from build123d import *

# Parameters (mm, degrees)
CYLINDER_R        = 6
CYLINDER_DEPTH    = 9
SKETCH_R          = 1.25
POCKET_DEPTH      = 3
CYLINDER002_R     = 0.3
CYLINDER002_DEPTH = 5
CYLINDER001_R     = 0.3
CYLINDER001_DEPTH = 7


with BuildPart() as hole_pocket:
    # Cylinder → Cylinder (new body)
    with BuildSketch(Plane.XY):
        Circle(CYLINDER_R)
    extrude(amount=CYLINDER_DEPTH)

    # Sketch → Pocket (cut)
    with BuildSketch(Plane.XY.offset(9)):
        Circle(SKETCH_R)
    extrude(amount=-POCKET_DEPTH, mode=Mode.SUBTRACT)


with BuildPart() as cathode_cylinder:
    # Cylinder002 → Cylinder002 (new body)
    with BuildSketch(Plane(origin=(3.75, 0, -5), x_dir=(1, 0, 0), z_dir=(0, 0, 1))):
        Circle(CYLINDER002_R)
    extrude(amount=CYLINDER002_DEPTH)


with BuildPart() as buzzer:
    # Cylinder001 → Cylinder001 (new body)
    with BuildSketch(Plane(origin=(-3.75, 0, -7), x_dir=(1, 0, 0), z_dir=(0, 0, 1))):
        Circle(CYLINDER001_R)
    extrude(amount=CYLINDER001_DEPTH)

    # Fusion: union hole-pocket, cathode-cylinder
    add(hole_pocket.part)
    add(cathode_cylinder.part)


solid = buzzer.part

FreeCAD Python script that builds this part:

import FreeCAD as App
import Part
import Sketcher
Q = App.Units.Quantity

doc = App.newDocument("Part")
body = doc.addObject("PartDesign::Body", "Body")

# Sketch on XY plane
sketch1 = body.newObject("Sketcher::SketchObject", "Sketch")
sketch1.AttachmentSupport = (doc.getObject("XY_Plane"), [""])
sketch1.MapMode = "FlatFace"
sketch1.addGeometry(Part.Circle(App.Vector(0, 0, 0), App.Vector(0, 0, 1), 6), False)
sketch1.addConstraint(Sketcher.Constraint("Coincident", 0, 3, -1, 1))
sketch1.addConstraint(Sketcher.Constraint("Diameter", 0, Q("12 mm")))
pad1 = body.newObject("PartDesign::Pad", "Pad")
pad1.Profile = sketch1
pad1.Length = 9

# Sketch on XY plane
sketch2 = body.newObject("Sketcher::SketchObject", "Sketch001")
sketch2.AttachmentSupport = (doc.getObject("XY_Plane"), [""])
sketch2.MapMode = "FlatFace"
sketch2.AttachmentOffset = App.Placement(App.Vector(0, 0, 9), App.Rotation())
sketch2.addGeometry(Part.Circle(App.Vector(0, 0, 0), App.Vector(0, 0, 1), 1.2), False)
sketch2.addConstraint(Sketcher.Constraint("Coincident", 0, 3, -1, 1))
sketch2.addConstraint(Sketcher.Constraint("Diameter", 0, Q("2.5 mm")))
pocket1 = body.newObject("PartDesign::Pocket", "Pocket")
pocket1.Profile = sketch2
pocket1.Length = 3
body2 = doc.addObject("PartDesign::Body", "Body001")

# Sketch on XY plane
sketch3 = body2.newObject("Sketcher::SketchObject", "Sketch002")
sketch3.AttachmentSupport = (doc.getObject("XY_Plane001"), [""])
sketch3.MapMode = "FlatFace"
sketch3.AttachmentOffset = App.Placement(App.Vector(0, 0, -5), App.Rotation())
sketch3.addGeometry(Part.Circle(App.Vector(3.75, 0, 0), App.Vector(0, 0, 1), 0.3), False)
sketch3.addConstraint(Sketcher.Constraint("PointOnObject", 0, 3, -1))
sketch3.addConstraint(Sketcher.Constraint("Diameter", 0, Q("0.6 mm")))
sketch3.addConstraint(Sketcher.Constraint("DistanceX", -1, 1, 0, 3, Q("3.75 mm")))
pad2 = body2.newObject("PartDesign::Pad", "Pad001")
pad2.Profile = sketch3
pad2.Length = 5
body3 = doc.addObject("PartDesign::Body", "Body002")

# Sketch on XY plane
sketch4 = body3.newObject("Sketcher::SketchObject", "Sketch003")
sketch4.AttachmentSupport = (doc.getObject("XY_Plane002"), [""])
sketch4.MapMode = "FlatFace"
sketch4.AttachmentOffset = App.Placement(App.Vector(0, 0, -7), App.Rotation())
sketch4.addGeometry(Part.Circle(App.Vector(-3.75, 0, 0), App.Vector(0, 0, 1), 0.3), False)
sketch4.addConstraint(Sketcher.Constraint("PointOnObject", 0, 3, -1))
sketch4.addConstraint(Sketcher.Constraint("Diameter", 0, Q("0.6 mm")))
sketch4.addConstraint(Sketcher.Constraint("DistanceX", 0, 3, -1, 1, Q("3.75 mm")))
pad3 = body3.newObject("PartDesign::Pad", "Pad002")
pad3.Profile = sketch4
pad3.Length = 7
doc.recompute()

boolean = body3.newObject("PartDesign::Boolean", "Boolean")
boolean.Type = "Fuse"
boolean.addObjects([body])
doc.recompute()

boolean2 = body3.newObject("PartDesign::Boolean", "Boolean001")
boolean2.Type = "Fuse"
boolean2.addObjects([body2])

doc.recompute()
